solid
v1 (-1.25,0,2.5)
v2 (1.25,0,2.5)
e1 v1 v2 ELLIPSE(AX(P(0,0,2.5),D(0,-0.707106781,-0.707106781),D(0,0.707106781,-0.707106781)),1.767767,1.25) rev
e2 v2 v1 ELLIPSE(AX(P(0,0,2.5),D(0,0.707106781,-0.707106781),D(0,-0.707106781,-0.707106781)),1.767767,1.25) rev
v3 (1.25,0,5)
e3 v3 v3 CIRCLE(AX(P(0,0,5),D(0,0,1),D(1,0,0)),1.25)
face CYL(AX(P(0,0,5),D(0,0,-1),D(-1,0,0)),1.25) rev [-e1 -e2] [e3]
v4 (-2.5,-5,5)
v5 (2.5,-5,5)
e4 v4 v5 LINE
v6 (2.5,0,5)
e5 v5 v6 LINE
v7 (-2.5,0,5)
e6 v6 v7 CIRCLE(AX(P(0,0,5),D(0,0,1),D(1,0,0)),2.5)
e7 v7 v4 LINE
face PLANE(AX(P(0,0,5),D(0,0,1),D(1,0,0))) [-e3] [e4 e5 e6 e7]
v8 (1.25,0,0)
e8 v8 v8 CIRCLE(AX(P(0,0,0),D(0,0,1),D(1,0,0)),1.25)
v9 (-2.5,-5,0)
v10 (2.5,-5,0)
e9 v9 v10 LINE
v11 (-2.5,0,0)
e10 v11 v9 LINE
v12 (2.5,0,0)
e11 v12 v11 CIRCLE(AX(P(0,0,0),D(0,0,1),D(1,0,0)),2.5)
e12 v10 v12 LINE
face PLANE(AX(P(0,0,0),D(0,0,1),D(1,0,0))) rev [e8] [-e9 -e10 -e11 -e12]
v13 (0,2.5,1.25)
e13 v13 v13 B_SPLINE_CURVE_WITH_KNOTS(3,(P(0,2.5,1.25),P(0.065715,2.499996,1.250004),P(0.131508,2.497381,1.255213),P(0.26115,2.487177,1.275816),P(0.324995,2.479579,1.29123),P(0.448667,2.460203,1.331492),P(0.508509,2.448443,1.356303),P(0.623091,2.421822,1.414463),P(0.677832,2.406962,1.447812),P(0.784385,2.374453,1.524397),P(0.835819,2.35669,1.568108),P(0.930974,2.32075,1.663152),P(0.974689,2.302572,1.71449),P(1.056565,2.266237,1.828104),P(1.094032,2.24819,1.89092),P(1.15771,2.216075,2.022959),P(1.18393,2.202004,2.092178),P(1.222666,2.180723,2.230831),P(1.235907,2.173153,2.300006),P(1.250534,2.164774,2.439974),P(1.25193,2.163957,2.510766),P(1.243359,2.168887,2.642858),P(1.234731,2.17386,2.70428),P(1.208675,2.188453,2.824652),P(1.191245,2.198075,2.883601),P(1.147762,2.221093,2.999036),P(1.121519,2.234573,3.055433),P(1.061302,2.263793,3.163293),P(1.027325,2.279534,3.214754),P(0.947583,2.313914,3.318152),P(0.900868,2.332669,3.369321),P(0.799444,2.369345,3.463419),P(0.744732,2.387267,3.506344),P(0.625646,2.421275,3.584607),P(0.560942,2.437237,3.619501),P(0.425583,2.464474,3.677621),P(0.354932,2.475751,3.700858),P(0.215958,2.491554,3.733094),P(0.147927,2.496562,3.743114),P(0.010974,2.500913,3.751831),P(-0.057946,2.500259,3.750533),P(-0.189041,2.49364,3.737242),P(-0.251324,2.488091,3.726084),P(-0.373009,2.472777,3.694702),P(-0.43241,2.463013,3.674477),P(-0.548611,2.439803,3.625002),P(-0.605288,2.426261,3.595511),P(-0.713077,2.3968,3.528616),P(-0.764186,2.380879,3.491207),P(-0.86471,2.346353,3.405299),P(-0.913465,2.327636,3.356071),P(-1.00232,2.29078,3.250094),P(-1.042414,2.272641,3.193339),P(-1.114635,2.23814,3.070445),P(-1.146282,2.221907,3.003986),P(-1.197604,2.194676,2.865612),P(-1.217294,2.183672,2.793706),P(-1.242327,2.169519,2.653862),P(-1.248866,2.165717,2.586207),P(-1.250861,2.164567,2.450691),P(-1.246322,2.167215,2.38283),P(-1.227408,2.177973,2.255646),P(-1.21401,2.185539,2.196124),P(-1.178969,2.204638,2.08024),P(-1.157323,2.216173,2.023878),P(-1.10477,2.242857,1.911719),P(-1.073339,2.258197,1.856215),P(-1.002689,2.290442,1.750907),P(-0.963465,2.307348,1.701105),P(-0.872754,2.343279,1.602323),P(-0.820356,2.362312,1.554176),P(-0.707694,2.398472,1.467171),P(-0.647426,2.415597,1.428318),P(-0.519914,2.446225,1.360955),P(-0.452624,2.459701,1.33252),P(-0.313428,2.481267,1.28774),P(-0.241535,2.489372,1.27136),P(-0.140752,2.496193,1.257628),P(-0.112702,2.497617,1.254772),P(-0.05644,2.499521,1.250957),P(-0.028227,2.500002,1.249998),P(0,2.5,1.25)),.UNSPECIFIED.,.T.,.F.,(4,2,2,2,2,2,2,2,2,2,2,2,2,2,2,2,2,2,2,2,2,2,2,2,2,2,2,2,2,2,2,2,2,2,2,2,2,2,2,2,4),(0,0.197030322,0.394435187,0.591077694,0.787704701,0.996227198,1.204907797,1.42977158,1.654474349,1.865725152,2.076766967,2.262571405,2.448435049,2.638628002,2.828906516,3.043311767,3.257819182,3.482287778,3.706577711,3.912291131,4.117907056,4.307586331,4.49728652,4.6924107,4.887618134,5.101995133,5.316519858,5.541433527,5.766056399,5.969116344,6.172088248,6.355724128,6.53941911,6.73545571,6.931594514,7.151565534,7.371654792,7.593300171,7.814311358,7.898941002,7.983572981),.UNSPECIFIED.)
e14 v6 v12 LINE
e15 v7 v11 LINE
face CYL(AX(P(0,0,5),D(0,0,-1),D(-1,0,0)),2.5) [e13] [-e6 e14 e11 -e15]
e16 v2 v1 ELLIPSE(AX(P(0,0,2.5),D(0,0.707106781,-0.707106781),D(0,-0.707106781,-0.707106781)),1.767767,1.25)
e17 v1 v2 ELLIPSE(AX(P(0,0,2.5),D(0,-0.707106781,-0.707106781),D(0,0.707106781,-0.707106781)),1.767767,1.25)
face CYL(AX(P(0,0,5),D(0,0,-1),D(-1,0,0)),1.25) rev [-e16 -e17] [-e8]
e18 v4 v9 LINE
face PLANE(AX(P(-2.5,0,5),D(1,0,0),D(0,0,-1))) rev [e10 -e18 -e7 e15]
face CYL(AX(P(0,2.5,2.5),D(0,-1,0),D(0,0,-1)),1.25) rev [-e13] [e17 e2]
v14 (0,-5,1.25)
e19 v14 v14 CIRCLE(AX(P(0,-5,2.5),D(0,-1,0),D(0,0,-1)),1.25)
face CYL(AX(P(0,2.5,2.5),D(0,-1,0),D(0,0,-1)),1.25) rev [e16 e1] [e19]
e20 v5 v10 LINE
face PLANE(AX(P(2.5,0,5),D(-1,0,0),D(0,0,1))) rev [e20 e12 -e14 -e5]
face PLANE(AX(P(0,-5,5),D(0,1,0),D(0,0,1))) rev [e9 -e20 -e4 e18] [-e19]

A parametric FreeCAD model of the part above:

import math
import FreeCAD as App
import Part
import Sketcher
Q = App.Units.Quantity

doc = App.newDocument("Part")
params = doc.addObject("Spreadsheet::Sheet", "Params")
for row, (alias, value) in enumerate([
    ("sketch1_diameter", "2.5 mm"),
    ("sketch1_radius", "2.5 mm"),
    ("pad1_length", "5 mm"),
    ("sketch2_diameter", "2.5 mm"),
], start=1):
    params.set(f"A{row}", alias)
    params.set(f"B{row}", "=" + value)
    params.setAlias(f"B{row}", alias)

body = doc.addObject("PartDesign::Body", "Body")

# Sketch on XY plane
sketch1 = body.newObject("Sketcher::SketchObject", "Sketch")
sketch1.AttachmentSupport = (doc.getObject("XY_Plane"), [""])
sketch1.MapMode = "FlatFace"
sketch1.addGeometry([
    Part.LineSegment(App.Vector(-2.5, 0, 0), App.Vector(-2.5, -5, 0)),  # 0
    Part.LineSegment(App.Vector(-2.5, -5, 0), App.Vector(2.5, -5, 0)),  # 1
    Part.LineSegment(App.Vector(2.5, -5, 0), App.Vector(2.5, 0, 0)),  # 2
    Part.ArcOfCircle(Part.Circle(App.Vector(0, 0, 0), App.Vector(0, 0, 1), 2.5), math.radians(0), math.radians(180)),  # 3
    Part.Circle(App.Vector(0, 0, 0), App.Vector(0, 0, 1), 1.2),  # 4
], False)
sketch1.addConstraint([
    Sketcher.Constraint("Coincident", 0, 2, 1, 1),
    Sketcher.Constraint("Coincident", 1, 2, 2, 1),
    Sketcher.Constraint("Tangent", 2, 2, 3, 1),
    Sketcher.Constraint("Tangent", 3, 2, 0, 1),
    Sketcher.Constraint("Vertical", 0),
    Sketcher.Constraint("Horizontal", 1),
    Sketcher.Constraint("Vertical", 2),
    Sketcher.Constraint("Coincident", 3, 3, -1, 1),
    Sketcher.Constraint("Coincident", 4, 3, -1, 1),
    Sketcher.Constraint("Equal", 1, 0),
    Sketcher.Constraint("Diameter", 4, Q("2.5 mm")),
    Sketcher.Constraint("Radius", 3, Q("2.5 mm")),
])
sketch1.setExpression("Constraints[10]", "Params.sketch1_diameter")
sketch1.setExpression("Constraints[11]", "Params.sketch1_radius")
pad1 = body.newObject("PartDesign::Pad", "Pad")
pad1.Profile = sketch1
pad1.setExpression("Length", "Params.pad1_length")

# Sketch on XZ plane
sketch2 = body.newObject("Sketcher::SketchObject", "Sketch001")
sketch2.AttachmentSupport = (doc.getObject("XZ_Plane"), [""])
sketch2.MapMode = "FlatFace"
sketch2.AttachmentOffset = App.Placement(App.Vector(0, 0, 5), App.Rotation())
sketch2.addGeometry(Part.Circle(App.Vector(0, 2.5, 0), App.Vector(0, 0, 1), 1.2), False)
sketch2.addConstraint([
    Sketcher.Constraint("PointOnObject", 0, 3, -2),
    Sketcher.Constraint("Diameter", 0, Q("2.5 mm")),
    Sketcher.Constraint("DistanceY", -1, 1, 0, 3, Q("2.5 mm")),
])
sketch2.setExpression("Constraints[1]", "Params.sketch2_diameter")
pocket1 = body.newObject("PartDesign::Pocket", "Pocket")
pocket1.Profile = sketch2
pocket1.Type = "ThroughAll"

doc.recompute()
